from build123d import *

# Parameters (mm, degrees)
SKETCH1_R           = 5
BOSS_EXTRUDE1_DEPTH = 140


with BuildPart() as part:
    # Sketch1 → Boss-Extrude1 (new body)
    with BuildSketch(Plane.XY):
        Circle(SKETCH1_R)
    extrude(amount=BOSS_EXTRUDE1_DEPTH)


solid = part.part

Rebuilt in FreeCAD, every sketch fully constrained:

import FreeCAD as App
import Part
import Sketcher
Q = App.Units.Quantity

doc = App.newDocument("Part")
params = doc.addObject("Spreadsheet::Sheet", "Params")
for row, (alias, value) in enumerate([
    ("sketch1_diameter", "10 mm"),
    ("pad1_length", "140 mm"),
], start=1):
    params.set(f"A{row}", alias)
    params.set(f"B{row}", "=" + value)
    params.setAlias(f"B{row}", alias)

body = doc.addObject("PartDesign::Body", "Body")

# Sketch on XY plane
sketch1 = doc.addObject("Sketcher::SketchObject", "Sketch")
body.addObject(sketch1)
sketch1.AttachmentSupport = (doc.XY_Plane, [""])
sketch1.MapMode = "FlatFace"
sketch1.addGeometry(Part.Circle(App.Vector(0, 0, 0), App.Vector(0, 0, 1), 5), False)
sketch1.addConstraint(Sketcher.Constraint("Coincident", 0, 3, -1, 1))
sketch1.addConstraint(Sketcher.Constraint("Diameter", 0, Q("10 mm")))
sketch1.setExpression("Constraints[1]", "Params.sketch1_diameter")
pad1 = doc.addObject("PartDesign::Pad", "Pad")
body.addObject(pad1)
pad1.Profile = sketch1
pad1.setExpression("Length", "Params.pad1_length")

doc.recompute()
